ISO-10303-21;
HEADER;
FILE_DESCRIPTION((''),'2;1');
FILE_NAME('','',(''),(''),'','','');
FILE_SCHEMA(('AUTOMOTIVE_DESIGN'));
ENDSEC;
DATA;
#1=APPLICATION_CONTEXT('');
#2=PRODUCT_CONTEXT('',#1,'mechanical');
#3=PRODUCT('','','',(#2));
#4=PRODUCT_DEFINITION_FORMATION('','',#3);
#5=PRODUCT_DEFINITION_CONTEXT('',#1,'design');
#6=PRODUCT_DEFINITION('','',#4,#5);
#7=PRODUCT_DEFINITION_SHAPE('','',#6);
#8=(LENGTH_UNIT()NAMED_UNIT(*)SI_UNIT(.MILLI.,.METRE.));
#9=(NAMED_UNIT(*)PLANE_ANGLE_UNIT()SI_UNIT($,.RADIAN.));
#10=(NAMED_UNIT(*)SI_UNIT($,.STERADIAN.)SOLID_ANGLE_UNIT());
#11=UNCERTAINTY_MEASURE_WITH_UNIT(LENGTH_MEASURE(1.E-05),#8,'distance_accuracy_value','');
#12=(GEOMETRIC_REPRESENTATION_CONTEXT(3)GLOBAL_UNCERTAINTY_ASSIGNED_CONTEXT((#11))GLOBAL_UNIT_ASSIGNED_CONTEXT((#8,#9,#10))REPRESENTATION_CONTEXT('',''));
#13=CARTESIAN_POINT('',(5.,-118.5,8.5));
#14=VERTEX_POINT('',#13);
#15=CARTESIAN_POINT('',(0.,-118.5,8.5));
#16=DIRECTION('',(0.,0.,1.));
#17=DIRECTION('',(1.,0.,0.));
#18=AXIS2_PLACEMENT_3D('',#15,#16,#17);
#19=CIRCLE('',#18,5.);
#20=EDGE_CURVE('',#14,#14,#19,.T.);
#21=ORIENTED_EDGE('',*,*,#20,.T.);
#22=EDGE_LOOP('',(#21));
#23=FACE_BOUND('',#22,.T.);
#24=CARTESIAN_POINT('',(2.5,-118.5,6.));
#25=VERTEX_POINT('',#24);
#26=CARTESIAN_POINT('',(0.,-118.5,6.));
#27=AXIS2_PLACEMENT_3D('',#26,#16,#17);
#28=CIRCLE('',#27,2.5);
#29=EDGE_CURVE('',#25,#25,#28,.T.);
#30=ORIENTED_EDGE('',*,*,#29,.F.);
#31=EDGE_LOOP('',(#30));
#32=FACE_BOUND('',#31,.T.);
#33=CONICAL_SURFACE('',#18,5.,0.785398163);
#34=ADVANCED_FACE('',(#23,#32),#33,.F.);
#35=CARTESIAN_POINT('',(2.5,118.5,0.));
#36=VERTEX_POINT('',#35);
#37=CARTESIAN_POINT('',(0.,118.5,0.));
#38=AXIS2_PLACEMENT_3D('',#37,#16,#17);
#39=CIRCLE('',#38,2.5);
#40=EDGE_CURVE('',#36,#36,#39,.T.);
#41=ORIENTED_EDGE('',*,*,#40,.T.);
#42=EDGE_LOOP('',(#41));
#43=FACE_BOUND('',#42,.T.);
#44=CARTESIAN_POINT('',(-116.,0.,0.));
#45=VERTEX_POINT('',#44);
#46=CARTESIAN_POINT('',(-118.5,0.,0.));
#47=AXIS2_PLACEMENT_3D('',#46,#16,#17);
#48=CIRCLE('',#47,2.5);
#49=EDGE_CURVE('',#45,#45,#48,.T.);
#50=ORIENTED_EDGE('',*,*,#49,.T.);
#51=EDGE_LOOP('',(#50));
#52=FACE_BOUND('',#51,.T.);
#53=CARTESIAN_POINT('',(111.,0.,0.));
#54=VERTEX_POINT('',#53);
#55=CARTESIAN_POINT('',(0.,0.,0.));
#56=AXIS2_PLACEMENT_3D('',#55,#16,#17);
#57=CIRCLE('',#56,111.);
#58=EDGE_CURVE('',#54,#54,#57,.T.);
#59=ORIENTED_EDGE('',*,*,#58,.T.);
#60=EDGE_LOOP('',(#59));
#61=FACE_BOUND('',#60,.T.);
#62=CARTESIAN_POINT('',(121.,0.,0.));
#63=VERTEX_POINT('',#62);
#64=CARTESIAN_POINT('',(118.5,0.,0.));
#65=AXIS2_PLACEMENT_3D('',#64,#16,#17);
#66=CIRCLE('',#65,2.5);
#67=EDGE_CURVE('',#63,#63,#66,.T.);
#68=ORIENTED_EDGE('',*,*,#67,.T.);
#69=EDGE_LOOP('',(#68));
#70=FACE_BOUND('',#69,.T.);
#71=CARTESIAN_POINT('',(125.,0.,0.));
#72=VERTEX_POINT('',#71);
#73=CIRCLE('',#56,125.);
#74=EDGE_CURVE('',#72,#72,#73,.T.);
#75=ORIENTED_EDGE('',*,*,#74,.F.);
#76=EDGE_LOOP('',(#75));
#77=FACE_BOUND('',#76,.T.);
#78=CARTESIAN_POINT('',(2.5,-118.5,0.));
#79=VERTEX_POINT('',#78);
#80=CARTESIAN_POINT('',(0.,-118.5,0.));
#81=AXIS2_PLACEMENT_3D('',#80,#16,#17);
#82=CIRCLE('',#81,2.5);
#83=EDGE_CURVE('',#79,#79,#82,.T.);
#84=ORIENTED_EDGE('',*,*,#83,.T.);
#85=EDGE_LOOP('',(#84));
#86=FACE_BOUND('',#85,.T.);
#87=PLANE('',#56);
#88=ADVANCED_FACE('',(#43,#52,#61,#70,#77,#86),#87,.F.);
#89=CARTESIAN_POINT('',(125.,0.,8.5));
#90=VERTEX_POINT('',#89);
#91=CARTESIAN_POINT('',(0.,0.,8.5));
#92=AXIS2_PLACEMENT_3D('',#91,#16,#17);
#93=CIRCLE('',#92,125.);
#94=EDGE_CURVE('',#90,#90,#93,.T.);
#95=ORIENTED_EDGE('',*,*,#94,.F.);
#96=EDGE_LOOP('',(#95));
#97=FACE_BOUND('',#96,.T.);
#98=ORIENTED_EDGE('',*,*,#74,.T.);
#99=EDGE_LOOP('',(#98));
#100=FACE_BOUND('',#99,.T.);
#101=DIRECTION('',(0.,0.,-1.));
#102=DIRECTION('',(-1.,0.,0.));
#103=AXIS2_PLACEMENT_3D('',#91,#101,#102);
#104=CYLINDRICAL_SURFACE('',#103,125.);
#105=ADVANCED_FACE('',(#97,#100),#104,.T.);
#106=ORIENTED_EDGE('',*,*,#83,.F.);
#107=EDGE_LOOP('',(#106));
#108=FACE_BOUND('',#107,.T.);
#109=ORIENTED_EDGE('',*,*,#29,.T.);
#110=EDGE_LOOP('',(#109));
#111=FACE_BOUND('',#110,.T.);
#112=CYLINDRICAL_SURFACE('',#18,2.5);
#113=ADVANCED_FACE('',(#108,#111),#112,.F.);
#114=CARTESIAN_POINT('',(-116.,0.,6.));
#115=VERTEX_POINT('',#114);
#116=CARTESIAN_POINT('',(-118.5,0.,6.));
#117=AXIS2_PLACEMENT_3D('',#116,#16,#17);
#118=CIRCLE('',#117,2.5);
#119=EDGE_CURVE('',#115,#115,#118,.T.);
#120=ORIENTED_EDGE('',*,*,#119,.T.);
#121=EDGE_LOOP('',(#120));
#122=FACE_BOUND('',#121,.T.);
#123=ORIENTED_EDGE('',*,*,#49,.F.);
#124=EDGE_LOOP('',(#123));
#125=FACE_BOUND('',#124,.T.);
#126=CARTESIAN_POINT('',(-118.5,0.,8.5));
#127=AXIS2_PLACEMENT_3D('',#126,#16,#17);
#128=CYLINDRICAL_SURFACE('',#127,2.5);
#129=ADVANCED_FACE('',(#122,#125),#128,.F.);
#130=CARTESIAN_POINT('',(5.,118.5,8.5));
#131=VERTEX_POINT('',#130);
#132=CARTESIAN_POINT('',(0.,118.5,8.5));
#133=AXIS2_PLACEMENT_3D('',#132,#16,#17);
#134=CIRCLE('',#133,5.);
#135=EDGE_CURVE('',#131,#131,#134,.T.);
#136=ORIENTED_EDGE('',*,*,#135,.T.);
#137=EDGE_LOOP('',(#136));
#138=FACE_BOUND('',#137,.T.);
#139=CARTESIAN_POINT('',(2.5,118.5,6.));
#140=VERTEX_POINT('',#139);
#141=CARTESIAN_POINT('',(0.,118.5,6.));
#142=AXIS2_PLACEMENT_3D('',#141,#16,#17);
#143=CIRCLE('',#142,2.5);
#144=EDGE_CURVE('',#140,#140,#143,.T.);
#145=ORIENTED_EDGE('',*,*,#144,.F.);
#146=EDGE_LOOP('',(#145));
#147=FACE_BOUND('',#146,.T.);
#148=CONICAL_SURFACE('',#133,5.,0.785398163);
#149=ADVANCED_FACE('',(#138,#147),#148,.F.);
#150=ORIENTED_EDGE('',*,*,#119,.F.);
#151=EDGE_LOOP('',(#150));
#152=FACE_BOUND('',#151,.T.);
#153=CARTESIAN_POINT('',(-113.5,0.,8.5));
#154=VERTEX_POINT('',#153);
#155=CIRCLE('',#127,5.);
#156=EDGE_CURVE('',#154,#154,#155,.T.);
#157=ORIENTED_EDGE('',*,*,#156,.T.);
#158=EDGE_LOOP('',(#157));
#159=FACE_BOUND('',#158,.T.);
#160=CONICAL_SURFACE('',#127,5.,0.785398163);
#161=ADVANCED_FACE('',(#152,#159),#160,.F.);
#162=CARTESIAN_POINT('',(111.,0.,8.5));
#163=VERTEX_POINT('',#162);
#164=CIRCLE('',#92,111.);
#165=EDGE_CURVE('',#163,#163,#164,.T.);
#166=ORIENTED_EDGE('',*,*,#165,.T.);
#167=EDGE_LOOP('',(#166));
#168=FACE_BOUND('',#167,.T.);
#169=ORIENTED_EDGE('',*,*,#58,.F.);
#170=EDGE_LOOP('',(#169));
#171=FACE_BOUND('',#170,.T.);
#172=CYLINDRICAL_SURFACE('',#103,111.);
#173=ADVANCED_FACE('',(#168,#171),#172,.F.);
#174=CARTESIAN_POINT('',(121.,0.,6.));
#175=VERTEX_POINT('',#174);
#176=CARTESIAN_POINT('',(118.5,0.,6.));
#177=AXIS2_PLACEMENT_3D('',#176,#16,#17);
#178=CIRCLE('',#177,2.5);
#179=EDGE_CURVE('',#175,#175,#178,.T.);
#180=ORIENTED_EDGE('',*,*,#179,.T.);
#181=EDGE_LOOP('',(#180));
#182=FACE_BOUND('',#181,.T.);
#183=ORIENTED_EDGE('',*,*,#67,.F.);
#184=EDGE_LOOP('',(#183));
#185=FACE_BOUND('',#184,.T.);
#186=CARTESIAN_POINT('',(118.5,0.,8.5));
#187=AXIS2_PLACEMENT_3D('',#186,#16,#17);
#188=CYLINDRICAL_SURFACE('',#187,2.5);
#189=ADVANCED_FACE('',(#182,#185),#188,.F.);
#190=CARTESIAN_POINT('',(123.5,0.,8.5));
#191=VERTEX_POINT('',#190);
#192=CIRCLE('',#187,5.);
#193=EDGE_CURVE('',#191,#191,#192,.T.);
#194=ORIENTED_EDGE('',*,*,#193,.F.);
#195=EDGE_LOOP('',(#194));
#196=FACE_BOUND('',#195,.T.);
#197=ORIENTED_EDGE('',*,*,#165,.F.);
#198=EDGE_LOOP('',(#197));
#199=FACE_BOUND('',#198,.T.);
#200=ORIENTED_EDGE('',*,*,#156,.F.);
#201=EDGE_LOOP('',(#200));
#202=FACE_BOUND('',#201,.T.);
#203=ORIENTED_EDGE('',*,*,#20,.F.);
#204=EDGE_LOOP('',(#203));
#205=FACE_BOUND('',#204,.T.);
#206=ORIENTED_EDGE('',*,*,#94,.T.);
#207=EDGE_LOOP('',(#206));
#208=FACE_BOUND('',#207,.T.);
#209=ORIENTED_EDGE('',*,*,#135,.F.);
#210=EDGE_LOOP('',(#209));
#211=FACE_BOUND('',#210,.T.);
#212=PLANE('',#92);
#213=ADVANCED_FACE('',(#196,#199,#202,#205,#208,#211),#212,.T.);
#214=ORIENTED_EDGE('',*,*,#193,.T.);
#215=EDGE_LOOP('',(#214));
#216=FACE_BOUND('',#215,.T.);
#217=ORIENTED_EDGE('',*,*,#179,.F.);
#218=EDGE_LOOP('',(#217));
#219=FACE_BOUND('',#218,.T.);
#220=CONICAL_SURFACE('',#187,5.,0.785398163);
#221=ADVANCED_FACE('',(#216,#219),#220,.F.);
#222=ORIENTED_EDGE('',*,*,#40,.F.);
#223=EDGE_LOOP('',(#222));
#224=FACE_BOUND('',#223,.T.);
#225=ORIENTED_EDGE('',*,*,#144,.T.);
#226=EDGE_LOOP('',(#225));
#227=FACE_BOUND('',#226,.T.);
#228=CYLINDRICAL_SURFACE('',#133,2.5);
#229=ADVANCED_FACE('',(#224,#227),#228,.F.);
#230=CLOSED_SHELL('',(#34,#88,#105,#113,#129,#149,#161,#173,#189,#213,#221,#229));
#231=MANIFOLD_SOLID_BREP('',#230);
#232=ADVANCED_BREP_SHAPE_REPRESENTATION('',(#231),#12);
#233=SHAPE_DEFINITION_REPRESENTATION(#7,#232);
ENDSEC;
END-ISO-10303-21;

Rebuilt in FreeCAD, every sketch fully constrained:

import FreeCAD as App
import Part
import Sketcher

doc = App.newDocument("Part")
body = doc.addObject("PartDesign::Body", "Body")

# Sketch on XY plane
sketch1 = body.newObject("Sketcher::SketchObject", "Sketch")
sketch1.AttachmentSupport = (doc.getObject("XY_Plane"), [""])
sketch1.MapMode = "FlatFace"
sketch1.addGeometry([
    Part.Circle(App.Vector(0, 0, 0), App.Vector(0, 0, 1), 125),
    Part.Circle(App.Vector(0, 0, 0), App.Vector(0, 0, 1), 111),
], False)
sketch1.addConstraint([
    Sketcher.Constraint("Coincident", 0, 3, -1, 1),
    Sketcher.Constraint("Coincident", 1, 3, -1, 1),
    Sketcher.Constraint("Diameter", 0, 250.0),
    Sketcher.Constraint("Diameter", 1, 222.0),
])
pad1 = body.newObject("PartDesign::Pad", "Pad")
pad1.Profile = sketch1
pad1.Length = 8.5

# Sketch on XY plane
sketch2 = body.newObject("Sketcher::SketchObject", "Sketch001")
sketch2.AttachmentSupport = (doc.getObject("XY_Plane"), [""])
sketch2.MapMode = "FlatFace"
sketch2.AttachmentOffset = App.Placement(App.Vector(0, 0, 8.5), App.Rotation())
sketch2.addGeometry(Part.Circle(App.Vector(0, -118.5, 0), App.Vector(0, 0, 1), 2.5), False)
sketch2.addConstraint([
    Sketcher.Constraint("PointOnObject", 0, 3, -2),
    Sketcher.Constraint("Diameter", 0, 5.0),
    Sketcher.Constraint("DistanceY", 0, 3, -1, 1, 118.5),
])
doc.recompute()
hole = body.newObject("PartDesign::Hole", "Hole")
hole.Profile = sketch2
hole.ThreadType = "None"
hole.Diameter = 5
hole.DepthType = "ThroughAll"
hole.HoleCutType = "Countersink"
hole.HoleCutDiameter = 10
hole.HoleCutCountersinkAngle = 90
doc.recompute()

polarpattern = body.newObject("PartDesign::PolarPattern", "PolarPattern")
polarpattern.Originals = [hole]
polarpattern.Axis = (doc.getObject("Z_Axis"), [""])
polarpattern.Angle = 360
polarpattern.Occurrences = 4
body.Tip = polarpattern

doc.recompute()
